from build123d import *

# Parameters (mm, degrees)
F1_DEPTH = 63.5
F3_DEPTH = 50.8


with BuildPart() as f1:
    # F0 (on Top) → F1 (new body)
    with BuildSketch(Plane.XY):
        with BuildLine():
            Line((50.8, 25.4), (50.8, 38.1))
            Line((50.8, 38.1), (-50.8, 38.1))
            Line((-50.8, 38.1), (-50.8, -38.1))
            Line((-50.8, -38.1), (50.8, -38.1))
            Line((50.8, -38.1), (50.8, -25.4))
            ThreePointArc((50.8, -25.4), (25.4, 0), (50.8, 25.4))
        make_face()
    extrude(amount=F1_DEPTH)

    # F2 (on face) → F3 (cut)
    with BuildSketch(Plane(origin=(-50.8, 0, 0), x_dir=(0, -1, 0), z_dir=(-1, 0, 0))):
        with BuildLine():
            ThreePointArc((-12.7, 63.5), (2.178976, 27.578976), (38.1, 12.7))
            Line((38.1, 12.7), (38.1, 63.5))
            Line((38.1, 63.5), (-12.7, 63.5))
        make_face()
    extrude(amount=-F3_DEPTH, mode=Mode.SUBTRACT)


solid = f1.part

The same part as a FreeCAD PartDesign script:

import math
import FreeCAD as App
import Part
import Sketcher
from FreeCAD import Vector
Q = App.Units.Quantity

doc = App.newDocument("Part")
body = doc.addObject("PartDesign::Body", "Body")

# Sketch on XY plane
sketch1 = body.newObject("Sketcher::SketchObject", "Sketch")
sketch1.AttachmentSupport = (doc.getObject("XY_Plane"), [""])
sketch1.MapMode = "FlatFace"
sketch1.addGeometry(Part.LineSegment(Vector(51, 25, 0), Vector(51, 38, 0)), False)
sketch1.addGeometry(Part.LineSegment(Vector(51, 38, 0), Vector(-51, 38, 0)), False)
sketch1.addGeometry(Part.LineSegment(Vector(-51, 38, 0), Vector(-51, -38, 0)), False)
sketch1.addGeometry(Part.LineSegment(Vector(-51, -38, 0), Vector(51, -38, 0)), False)
sketch1.addGeometry(Part.LineSegment(Vector(51, -38, 0), Vector(51, -25, 0)), False)
sketch1.addGeometry(Part.ArcOfCircle(Part.Circle(Vector(51, 0, 0), Vector(0, 0, 1), 25), math.radians(90), math.radians(270)), False)
sketch1.addConstraint(Sketcher.Constraint("Coincident", 0, 2, 1, 1))
sketch1.addConstraint(Sketcher.Constraint("Coincident", 1, 2, 2, 1))
sketch1.addConstraint(Sketcher.Constraint("Coincident", 2, 2, 3, 1))
sketch1.addConstraint(Sketcher.Constraint("Coincident", 3, 2, 4, 1))
sketch1.addConstraint(Sketcher.Constraint("Coincident", 4, 2, 5, 2))
sketch1.addConstraint(Sketcher.Constraint("Coincident", 5, 1, 0, 1))
sketch1.addConstraint(Sketcher.Constraint("Vertical", 0))
sketch1.addConstraint(Sketcher.Constraint("Horizontal", 1))
sketch1.addConstraint(Sketcher.Constraint("Vertical", 2))
sketch1.addConstraint(Sketcher.Constraint("Horizontal", 3))
sketch1.addConstraint(Sketcher.Constraint("Vertical", 4))
sketch1.addConstraint(Sketcher.Constraint("Symmetric", 0, 2, 2, 2, -1, 1))
sketch1.addConstraint(Sketcher.Constraint("Symmetric", 4, 2, 5, 1, -1))
sketch1.addConstraint(Sketcher.Constraint("Vertical", 5, 3, 0, 2))
sketch1.addConstraint(Sketcher.Constraint("Radius", 5, Q("1 in")))
sketch1.addConstraint(Sketcher.Constraint("DistanceX", 1, 2, 1, 1, Q("4 in")))
sketch1.addConstraint(Sketcher.Constraint("DistanceY", 2, 2, 2, 1, Q("3 in")))
pad1 = body.newObject("PartDesign::Pad", "Pad")
pad1.Profile = sketch1
pad1.Length = Q("2.5 in")

# Sketch on YZ plane
sketch2 = body.newObject("Sketcher::SketchObject", "Sketch001")
sketch2.AttachmentSupport = (doc.getObject("YZ_Plane"), [""])
sketch2.MapMode = "FlatFace"
sketch2.AttachmentOffset = App.Placement(Vector(0, 0, -2 * 25.4), App.Rotation())
sketch2.addGeometry(Part.ArcOfCircle(Part.Circle(Vector(-38, 64, 0), Vector(0, 0, 1), 51), math.radians(-90), math.radians(0)), False)
sketch2.addGeometry(Part.LineSegment(Vector(-38, 13, 0), Vector(-38, 64, 0)), False)
sketch2.addGeometry(Part.LineSegment(Vector(-38, 64, 0), Vector(13, 64, 0)), False)
sketch2.addConstraint(Sketcher.Constraint("Coincident", 0, 1, 1, 1))
sketch2.addConstraint(Sketcher.Constraint("Coincident", 1, 2, 2, 1))
sketch2.addConstraint(Sketcher.Constraint("Coincident", 2, 2, 0, 2))
sketch2.addConstraint(Sketcher.Constraint("Vertical", 1))
sketch2.addConstraint(Sketcher.Constraint("Horizontal", 2))
sketch2.addConstraint(Sketcher.Constraint("Coincident", 1, 2, 0, 3))
sketch2.addConstraint(Sketcher.Constraint("Radius", 0, Q("2.0000001 in")))
sketch2.addConstraint(Sketcher.Constraint("DistanceX", 0, 3, -1, 1, Q("1.5000001 in")))
sketch2.addConstraint(Sketcher.Constraint("DistanceY", -1, 1, 0, 3, Q("2.5000001 in")))
pocket1 = body.newObject("PartDesign::Pocket", "Pocket")
pocket1.Profile = sketch2
pocket1.Length = Q("2 in")
pocket1.Reversed = True

doc.recompute()
